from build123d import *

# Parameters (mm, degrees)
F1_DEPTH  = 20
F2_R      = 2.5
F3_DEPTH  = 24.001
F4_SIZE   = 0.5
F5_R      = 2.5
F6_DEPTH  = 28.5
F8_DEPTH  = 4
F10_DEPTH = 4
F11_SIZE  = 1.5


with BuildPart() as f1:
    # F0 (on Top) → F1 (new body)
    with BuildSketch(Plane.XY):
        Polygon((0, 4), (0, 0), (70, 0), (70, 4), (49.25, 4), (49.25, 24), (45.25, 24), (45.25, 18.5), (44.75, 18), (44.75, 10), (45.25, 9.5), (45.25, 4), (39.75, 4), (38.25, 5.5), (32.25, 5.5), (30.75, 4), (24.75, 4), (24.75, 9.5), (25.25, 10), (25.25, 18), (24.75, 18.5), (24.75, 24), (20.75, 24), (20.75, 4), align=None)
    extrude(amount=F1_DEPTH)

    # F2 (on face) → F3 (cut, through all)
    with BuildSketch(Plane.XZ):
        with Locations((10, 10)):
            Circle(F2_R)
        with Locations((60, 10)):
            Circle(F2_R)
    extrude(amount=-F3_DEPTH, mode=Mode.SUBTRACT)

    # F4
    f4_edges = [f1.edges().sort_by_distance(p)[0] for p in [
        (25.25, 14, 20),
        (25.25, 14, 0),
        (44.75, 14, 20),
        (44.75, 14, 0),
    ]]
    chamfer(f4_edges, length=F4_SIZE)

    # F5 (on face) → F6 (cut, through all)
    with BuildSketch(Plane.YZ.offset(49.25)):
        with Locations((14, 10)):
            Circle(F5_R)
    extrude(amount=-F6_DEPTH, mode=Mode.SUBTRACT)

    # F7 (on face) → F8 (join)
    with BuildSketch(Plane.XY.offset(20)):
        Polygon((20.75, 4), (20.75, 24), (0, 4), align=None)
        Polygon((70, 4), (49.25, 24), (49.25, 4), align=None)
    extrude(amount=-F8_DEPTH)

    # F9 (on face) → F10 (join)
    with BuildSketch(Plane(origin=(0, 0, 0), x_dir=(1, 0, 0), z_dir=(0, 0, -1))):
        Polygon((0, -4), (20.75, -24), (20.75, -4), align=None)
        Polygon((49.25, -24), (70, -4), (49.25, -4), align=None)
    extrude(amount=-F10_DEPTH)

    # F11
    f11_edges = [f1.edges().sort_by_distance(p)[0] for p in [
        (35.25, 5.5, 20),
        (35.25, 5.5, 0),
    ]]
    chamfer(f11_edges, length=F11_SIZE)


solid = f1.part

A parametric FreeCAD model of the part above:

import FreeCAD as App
import Part
import Sketcher
from FreeCAD import Vector


def edges_at(feature, points):
    """Names of the edges that pass closest to the given points."""
    edges = feature.Shape.Edges
    near = lambda p: min(range(len(edges)), key=lambda i: edges[i].distToShape(Part.Vertex(*p))[0])
    return sorted({f"Edge{near(p) + 1}" for p in points})

doc = App.newDocument("Part")
body = doc.addObject("PartDesign::Body", "Body")

# Sketch on XY plane
sketch1 = body.newObject("Sketcher::SketchObject", "Sketch")
sketch1.AttachmentSupport = (doc.getObject("XY_Plane"), [""])
sketch1.MapMode = "FlatFace"
sketch1.addGeometry(Part.LineSegment(Vector(0, 4, 0), Vector(0, 0, 0)), False)
sketch1.addGeometry(Part.LineSegment(Vector(0, 0, 0), Vector(70, 0, 0)), False)
sketch1.addGeometry(Part.LineSegment(Vector(70, 0, 0), Vector(70, 4, 0)), False)
sketch1.addGeometry(Part.LineSegment(Vector(70, 4, 0), Vector(49.25, 4, 0)), False)
sketch1.addGeometry(Part.LineSegment(Vector(49.25, 4, 0), Vector(49.25, 24, 0)), False)
sketch1.addGeometry(Part.LineSegment(Vector(49.25, 24, 0), Vector(45.25, 24, 0)), False)
sketch1.addGeometry(Part.LineSegment(Vector(45.25, 24, 0), Vector(45.25, 18.5, 0)), False)
sketch1.addGeometry(Part.LineSegment(Vector(45.25, 18.5, 0), Vector(44.75, 18, 0)), False)
sketch1.addGeometry(Part.LineSegment(Vector(44.75, 18, 0), Vector(44.75, 10, 0)), False)
sketch1.addGeometry(Part.LineSegment(Vector(44.75, 10, 0), Vector(45.25, 9.5, 0)), False)
sketch1.addGeometry(Part.LineSegment(Vector(45.25, 9.5, 0), Vector(45.25, 4, 0)), False)
sketch1.addGeometry(Part.LineSegment(Vector(45.25, 4, 0), Vector(39.75, 4, 0)), False)
sketch1.addGeometry(Part.LineSegment(Vector(39.75, 4, 0), Vector(38.25, 5.5, 0)), False)
sketch1.addGeometry(Part.LineSegment(Vector(38.25, 5.5, 0), Vector(32.25, 5.5, 0)), False)
sketch1.addGeometry(Part.LineSegment(Vector(32.25, 5.5, 0), Vector(30.75, 4, 0)), False)
sketch1.addGeometry(Part.LineSegment(Vector(30.75, 4, 0), Vector(24.75, 4, 0)), False)
sketch1.addGeometry(Part.LineSegment(Vector(24.75, 4, 0), Vector(24.75, 9.5, 0)), False)
sketch1.addGeometry(Part.LineSegment(Vector(24.75, 9.5, 0), Vector(25.25, 10, 0)), False)
sketch1.addGeometry(Part.LineSegment(Vector(25.25, 10, 0), Vector(25.25, 18, 0)), False)
sketch1.addGeometry(Part.LineSegment(Vector(25.25, 18, 0), Vector(24.75, 18.5, 0)), False)
sketch1.addGeometry(Part.LineSegment(Vector(24.75, 18.5, 0), Vector(24.75, 24, 0)), False)
sketch1.addGeometry(Part.LineSegment(Vector(24.75, 24, 0), Vector(20.75, 24, 0)), False)
sketch1.addGeometry(Part.LineSegment(Vector(20.75, 24, 0), Vector(20.75, 4, 0)), False)
sketch1.addGeometry(Part.LineSegment(Vector(20.75, 4, 0), Vector(0, 4, 0)), False)
sketch1.addConstraint(Sketcher.Constraint("Coincident", 0, 2, 1, 1))
sketch1.addConstraint(Sketcher.Constraint("Coincident", 1, 2, 2, 1))
sketch1.addConstraint(Sketcher.Constraint("Coincident", 2, 2, 3, 1))
sketch1.addConstraint(Sketcher.Constraint("Coincident", 3, 2, 4, 1))
sketch1.addConstraint(Sketcher.Constraint("Coincident", 4, 2, 5, 1))
sketch1.addConstraint(Sketcher.Constraint("Coincident", 5, 2, 6, 1))
sketch1.addConstraint(Sketcher.Constraint("Coincident", 6, 2, 7, 1))
sketch1.addConstraint(Sketcher.Constraint("Coincident", 7, 2, 8, 1))
sketch1.addConstraint(Sketcher.Constraint("Coincident", 8, 2, 9, 1))
sketch1.addConstraint(Sketcher.Constraint("Coincident", 9, 2, 10, 1))
sketch1.addConstraint(Sketcher.Constraint("Coincident", 10, 2, 11, 1))
sketch1.addConstraint(Sketcher.Constraint("Coincident", 11, 2, 12, 1))
sketch1.addConstraint(Sketcher.Constraint("Coincident", 12, 2, 13, 1))
sketch1.addConstraint(Sketcher.Constraint("Coincident", 13, 2, 14, 1))
sketch1.addConstraint(Sketcher.Constraint("Coincident", 14, 2, 15, 1))
sketch1.addConstraint(Sketcher.Constraint("Coincident", 15, 2, 16, 1))
sketch1.addConstraint(Sketcher.Constraint("Coincident", 16, 2, 17, 1))
sketch1.addConstraint(Sketcher.Constraint("Coincident", 17, 2, 18, 1))
sketch1.addConstraint(Sketcher.Constraint("Coincident", 18, 2, 19, 1))
sketch1.addConstraint(Sketcher.Constraint("Coincident", 19, 2, 20, 1))
sketch1.addConstraint(Sketcher.Constraint("Coincident", 20, 2, 21, 1))
sketch1.addConstraint(Sketcher.Constraint("Coincident", 21, 2, 22, 1))
sketch1.addConstraint(Sketcher.Constraint("Coincident", 22, 2, 23, 1))
sketch1.addConstraint(Sketcher.Constraint("Coincident", 23, 2, 0, 1))
sketch1.addConstraint(Sketcher.Constraint("Vertical", 0))
sketch1.addConstraint(Sketcher.Constraint("Horizontal", 1))
sketch1.addConstraint(Sketcher.Constraint("Vertical", 2))
sketch1.addConstraint(Sketcher.Constraint("Horizontal", 3))
sketch1.addConstraint(Sketcher.Constraint("Vertical", 4))
sketch1.addConstraint(Sketcher.Constraint("Horizontal", 5))
sketch1.addConstraint(Sketcher.Constraint("Vertical", 6))
sketch1.addConstraint(Sketcher.Constraint("Vertical", 8))
sketch1.addConstraint(Sketcher.Constraint("Vertical", 10))
sketch1.addConstraint(Sketcher.Constraint("Horizontal", 11))
sketch1.addConstraint(Sketcher.Constraint("Horizontal", 13))
sketch1.addConstraint(Sketcher.Constraint("Horizontal", 15))
sketch1.addConstraint(Sketcher.Constraint("Vertical", 16))
sketch1.addConstraint(Sketcher.Constraint("Vertical", 18))
sketch1.addConstraint(Sketcher.Constraint("Vertical", 20))
sketch1.addConstraint(Sketcher.Constraint("Horizontal", 21))
sketch1.addConstraint(Sketcher.Constraint("Vertical", 22))
sketch1.addConstraint(Sketcher.Constraint("Horizontal", 23))
sketch1.addConstraint(Sketcher.Constraint("Coincident", 0, 2, -1, 1))
sketch1.addConstraint(Sketcher.Constraint("Perpendicular", 7, 9))
sketch1.addConstraint(Sketcher.Constraint("Parallel", 9, 12))
sketch1.addConstraint(Sketcher.Constraint("Perpendicular", 12, 14))
sketch1.addConstraint(Sketcher.Constraint("Parallel", 14, 17))
sketch1.addConstraint(Sketcher.Constraint("Perpendicular", 17, 19))
sketch1.addConstraint(Sketcher.Constraint("Horizontal", 3, 2, 10, 2))
sketch1.addConstraint(Sketcher.Constraint("Horizontal", 11, 2, 14, 2))
sketch1.addConstraint(Sketcher.Constraint("Horizontal", 9, 2, 16, 2))
sketch1.addConstraint(Sketcher.Constraint("Horizontal", 8, 2, 17, 2))
sketch1.addConstraint(Sketcher.Constraint("Horizontal", 7, 2, 18, 2))
sketch1.addConstraint(Sketcher.Constraint("Horizontal", 6, 2, 19, 2))
sketch1.addConstraint(Sketcher.Constraint("Horizontal", 5, 2, 20, 2))
sketch1.addConstraint(Sketcher.Constraint("Horizontal", 15, 2, 22, 2))
sketch1.addConstraint(Sketcher.Constraint("Vertical", 6, 2, 9, 2))
sketch1.addConstraint(Sketcher.Constraint("Vertical", 16, 2, 19, 2))
sketch1.addConstraint(Sketcher.Constraint("Equal", 13, 15))
sketch1.addConstraint(Sketcher.Constraint("Equal", 5, 21))
sketch1.addConstraint(Sketcher.Constraint("Equal", 3, 23))
sketch1.addConstraint(Sketcher.Constraint("Equal", 21, 0))
sketch1.addConstraint(Sketcher.Constraint("Equal", 11, 6))
sketch1.addConstraint(Sketcher.Constraint("Equal", 6, 10))
sketch1.addConstraint(Sketcher.Constraint("DistanceX", 1, 1, 1, 2, 70.0))
sketch1.addConstraint(Sketcher.Constraint("DistanceX", 5, 2, 5, 1, 4.0))
sketch1.addConstraint(Sketcher.Constraint("DistanceX", 13, 2, 13, 1, 6.0))
sketch1.addConstraint(Sketcher.Constraint("DistanceY", 4, 1, 4, 2, 20.0))
sketch1.addConstraint(Sketcher.Constraint("DistanceY", 8, 2, 8, 1, 8.0))
sketch1.addConstraint(Sketcher.Constraint("DistanceX", 11, 2, 11, 1, 5.5))
sketch1.addConstraint(Sketcher.Constraint("DistanceX", 12, 2, 10, 2, 7.0))
pad1 = body.newObject("PartDesign::Pad", "Pad")
pad1.Profile = sketch1
pad1.Length = 20

# Sketch on XZ plane
sketch2 = body.newObject("Sketcher::SketchObject", "Sketch001")
sketch2.AttachmentSupport = (doc.getObject("XZ_Plane"), [""])
sketch2.MapMode = "FlatFace"
sketch2.addGeometry(Part.Circle(Vector(10, 10, 0), Vector(0, 0, 1), 2.5), False)
sketch2.addGeometry(Part.Circle(Vector(60, 10, 0), Vector(0, 0, 1), 2.5), False)
sketch2.addConstraint(Sketcher.Constraint("Equal", 0, 1))
sketch2.addConstraint(Sketcher.Constraint("Horizontal", 0, 3, 1, 3))
sketch2.addConstraint(Sketcher.Constraint("Diameter", 0, 5.0))
sketch2.addConstraint(Sketcher.Constraint("DistanceX", -1, 1, 0, 3, 10.0))
sketch2.addConstraint(Sketcher.Constraint("DistanceY", -1, 1, 0, 3, 10.0))
sketch2.addConstraint(Sketcher.Constraint("DistanceX", -1, 1, 1, 3, 60.0))
pocket1 = body.newObject("PartDesign::Pocket", "Pocket")
pocket1.Profile = sketch2
pocket1.Type = "ThroughAll"
doc.recompute()

chamfer = body.newObject("PartDesign::Chamfer", "Chamfer")
chamfer.Base = (pocket1, edges_at(pocket1, [
    (25.25, 14, 20),
    (25.25, 14, 0),
    (44.75, 14, 20),
    (44.75, 14, 0),
]))
chamfer.Size = 0.5

# Sketch on YZ plane
sketch3 = body.newObject("Sketcher::SketchObject", "Sketch002")
sketch3.AttachmentSupport = (doc.getObject("YZ_Plane"), [""])
sketch3.MapMode = "FlatFace"
sketch3.AttachmentOffset = App.Placement(Vector(0, 0, 49.25), App.Rotation())
sketch3.addGeometry(Part.Circle(Vector(14, 10, 0), Vector(0, 0, 1), 2.5), False)
sketch3.addConstraint(Sketcher.Constraint("Diameter", 0, 5.0))
sketch3.addConstraint(Sketcher.Constraint("DistanceX", -1, 1, 0, 3, 14.0))
sketch3.addConstraint(Sketcher.Constraint("DistanceY", -1, 1, 0, 3, 10.0))
pocket2 = body.newObject("PartDesign::Pocket", "Pocket001")
pocket2.Profile = sketch3
pocket2.Type = "ThroughAll"

# Sketch on XY plane
sketch4 = body.newObject("Sketcher::SketchObject", "Sketch003")
sketch4.AttachmentSupport = (doc.getObject("XY_Plane"), [""])
sketch4.MapMode = "FlatFace"
sketch4.AttachmentOffset = App.Placement(Vector(0, 0, 20), App.Rotation())
sketch4.addGeometry(Part.LineSegment(Vector(20.75, 4, 0), Vector(20.75, 24, 0)), False)
sketch4.addGeometry(Part.LineSegment(Vector(20.75, 24, 0), Vector(0, 4, 0)), False)
sketch4.addGeometry(Part.LineSegment(Vector(0, 4, 0), Vector(20.75, 4, 0)), False)
sketch4.addGeometry(Part.LineSegment(Vector(70, 4, 0), Vector(49.25, 24, 0)), False)
sketch4.addGeometry(Part.LineSegment(Vector(49.25, 24, 0), Vector(49.25, 4, 0)), False)
sketch4.addGeometry(Part.LineSegment(Vector(49.25, 4, 0), Vector(70, 4, 0)), False)
sketch4.addConstraint(Sketcher.Constraint("Coincident", 0, 2, 1, 1))
sketch4.addConstraint(Sketcher.Constraint("Coincident", 1, 2, 2, 1))
sketch4.addConstraint(Sketcher.Constraint("Coincident", 2, 2, 0, 1))
sketch4.addConstraint(Sketcher.Constraint("Coincident", 3, 2, 4, 1))
sketch4.addConstraint(Sketcher.Constraint("Coincident", 4, 2, 5, 1))
sketch4.addConstraint(Sketcher.Constraint("Coincident", 5, 2, 3, 1))
sketch4.addConstraint(Sketcher.Constraint("Vertical", 0))
sketch4.addConstraint(Sketcher.Constraint("Horizontal", 2))
sketch4.addConstraint(Sketcher.Constraint("Vertical", 4))
sketch4.addConstraint(Sketcher.Constraint("Horizontal", 5))
sketch4.addConstraint(Sketcher.Constraint("PointOnObject", 1, 2, -2))
sketch4.addConstraint(Sketcher.Constraint("Horizontal", 0, 2, 3, 2))
sketch4.addConstraint(Sketcher.Constraint("Horizontal", 2, 2, 4, 2))
sketch4.addConstraint(Sketcher.Constraint("Equal", 2, 5))
sketch4.addConstraint(Sketcher.Constraint("DistanceY", 0, 1, 0, 2, 20.0))
sketch4.addConstraint(Sketcher.Constraint("DistanceY", -1, 1, 0, 2, 24.0))
sketch4.addConstraint(Sketcher.Constraint("DistanceX", -1, 1, 5, 2, 70.0))
sketch4.addConstraint(Sketcher.Constraint("DistanceX", 2, 1, 2, 2, 20.75))
pad2 = body.newObject("PartDesign::Pad", "Pad001")
pad2.Profile = sketch4
pad2.Length = 4
pad2.Reversed = True

# Sketch on XY plane
sketch5 = body.newObject("Sketcher::SketchObject", "Sketch004")
sketch5.AttachmentSupport = (doc.getObject("XY_Plane"), [""])
sketch5.MapMode = "FlatFace"
sketch5.addGeometry(Part.LineSegment(Vector(0, 4, 0), Vector(20.75, 24, 0)), False)
sketch5.addGeometry(Part.LineSegment(Vector(20.75, 24, 0), Vector(20.75, 4, 0)), False)
sketch5.addGeometry(Part.LineSegment(Vector(20.75, 4, 0), Vector(0, 4, 0)), False)
sketch5.addGeometry(Part.LineSegment(Vector(49.25, 24, 0), Vector(70, 4, 0)), False)
sketch5.addGeometry(Part.LineSegment(Vector(70, 4, 0), Vector(49.25, 4, 0)), False)
sketch5.addGeometry(Part.LineSegment(Vector(49.25, 4, 0), Vector(49.25, 24, 0)), False)
sketch5.addConstraint(Sketcher.Constraint("Coincident", 0, 2, 1, 1))
sketch5.addConstraint(Sketcher.Constraint("Coincident", 1, 2, 2, 1))
sketch5.addConstraint(Sketcher.Constraint("Coincident", 2, 2, 0, 1))
sketch5.addConstraint(Sketcher.Constraint("Coincident", 3, 2, 4, 1))
sketch5.addConstraint(Sketcher.Constraint("Coincident", 4, 2, 5, 1))
sketch5.addConstraint(Sketcher.Constraint("Coincident", 5, 2, 3, 1))
sketch5.addConstraint(Sketcher.Constraint("Vertical", 1))
sketch5.addConstraint(Sketcher.Constraint("Horizontal", 2))
sketch5.addConstraint(Sketcher.Constraint("Horizontal", 4))
sketch5.addConstraint(Sketcher.Constraint("Vertical", 5))
sketch5.addConstraint(Sketcher.Constraint("PointOnObject", 2, 2, -2))
sketch5.addConstraint(Sketcher.Constraint("Horizontal", 2, 2, 3, 2))
sketch5.addConstraint(Sketcher.Constraint("Horizontal", 0, 2, 5, 2))
sketch5.addConstraint(Sketcher.Constraint("Equal", 2, 4))
sketch5.addConstraint(Sketcher.Constraint("DistanceY", 1, 2, 1, 1, 20.0))
sketch5.addConstraint(Sketcher.Constraint("DistanceY", -1, 1, 0, 2, 24.0))
sketch5.addConstraint(Sketcher.Constraint("DistanceX", -1, 1, 3, 2, 70.0))
sketch5.addConstraint(Sketcher.Constraint("DistanceX", 2, 2, 2, 1, 20.75))
pad3 = body.newObject("PartDesign::Pad", "Pad002")
pad3.Profile = sketch5
pad3.Length = 4
doc.recompute()

chamfer2 = body.newObject("PartDesign::Chamfer", "Chamfer001")
chamfer2.Base = (pad3, edges_at(pad3, [(35.25, 5.5, 20), (35.25, 5.5, 0)]))
chamfer2.Size = 1.5

doc.recompute()
